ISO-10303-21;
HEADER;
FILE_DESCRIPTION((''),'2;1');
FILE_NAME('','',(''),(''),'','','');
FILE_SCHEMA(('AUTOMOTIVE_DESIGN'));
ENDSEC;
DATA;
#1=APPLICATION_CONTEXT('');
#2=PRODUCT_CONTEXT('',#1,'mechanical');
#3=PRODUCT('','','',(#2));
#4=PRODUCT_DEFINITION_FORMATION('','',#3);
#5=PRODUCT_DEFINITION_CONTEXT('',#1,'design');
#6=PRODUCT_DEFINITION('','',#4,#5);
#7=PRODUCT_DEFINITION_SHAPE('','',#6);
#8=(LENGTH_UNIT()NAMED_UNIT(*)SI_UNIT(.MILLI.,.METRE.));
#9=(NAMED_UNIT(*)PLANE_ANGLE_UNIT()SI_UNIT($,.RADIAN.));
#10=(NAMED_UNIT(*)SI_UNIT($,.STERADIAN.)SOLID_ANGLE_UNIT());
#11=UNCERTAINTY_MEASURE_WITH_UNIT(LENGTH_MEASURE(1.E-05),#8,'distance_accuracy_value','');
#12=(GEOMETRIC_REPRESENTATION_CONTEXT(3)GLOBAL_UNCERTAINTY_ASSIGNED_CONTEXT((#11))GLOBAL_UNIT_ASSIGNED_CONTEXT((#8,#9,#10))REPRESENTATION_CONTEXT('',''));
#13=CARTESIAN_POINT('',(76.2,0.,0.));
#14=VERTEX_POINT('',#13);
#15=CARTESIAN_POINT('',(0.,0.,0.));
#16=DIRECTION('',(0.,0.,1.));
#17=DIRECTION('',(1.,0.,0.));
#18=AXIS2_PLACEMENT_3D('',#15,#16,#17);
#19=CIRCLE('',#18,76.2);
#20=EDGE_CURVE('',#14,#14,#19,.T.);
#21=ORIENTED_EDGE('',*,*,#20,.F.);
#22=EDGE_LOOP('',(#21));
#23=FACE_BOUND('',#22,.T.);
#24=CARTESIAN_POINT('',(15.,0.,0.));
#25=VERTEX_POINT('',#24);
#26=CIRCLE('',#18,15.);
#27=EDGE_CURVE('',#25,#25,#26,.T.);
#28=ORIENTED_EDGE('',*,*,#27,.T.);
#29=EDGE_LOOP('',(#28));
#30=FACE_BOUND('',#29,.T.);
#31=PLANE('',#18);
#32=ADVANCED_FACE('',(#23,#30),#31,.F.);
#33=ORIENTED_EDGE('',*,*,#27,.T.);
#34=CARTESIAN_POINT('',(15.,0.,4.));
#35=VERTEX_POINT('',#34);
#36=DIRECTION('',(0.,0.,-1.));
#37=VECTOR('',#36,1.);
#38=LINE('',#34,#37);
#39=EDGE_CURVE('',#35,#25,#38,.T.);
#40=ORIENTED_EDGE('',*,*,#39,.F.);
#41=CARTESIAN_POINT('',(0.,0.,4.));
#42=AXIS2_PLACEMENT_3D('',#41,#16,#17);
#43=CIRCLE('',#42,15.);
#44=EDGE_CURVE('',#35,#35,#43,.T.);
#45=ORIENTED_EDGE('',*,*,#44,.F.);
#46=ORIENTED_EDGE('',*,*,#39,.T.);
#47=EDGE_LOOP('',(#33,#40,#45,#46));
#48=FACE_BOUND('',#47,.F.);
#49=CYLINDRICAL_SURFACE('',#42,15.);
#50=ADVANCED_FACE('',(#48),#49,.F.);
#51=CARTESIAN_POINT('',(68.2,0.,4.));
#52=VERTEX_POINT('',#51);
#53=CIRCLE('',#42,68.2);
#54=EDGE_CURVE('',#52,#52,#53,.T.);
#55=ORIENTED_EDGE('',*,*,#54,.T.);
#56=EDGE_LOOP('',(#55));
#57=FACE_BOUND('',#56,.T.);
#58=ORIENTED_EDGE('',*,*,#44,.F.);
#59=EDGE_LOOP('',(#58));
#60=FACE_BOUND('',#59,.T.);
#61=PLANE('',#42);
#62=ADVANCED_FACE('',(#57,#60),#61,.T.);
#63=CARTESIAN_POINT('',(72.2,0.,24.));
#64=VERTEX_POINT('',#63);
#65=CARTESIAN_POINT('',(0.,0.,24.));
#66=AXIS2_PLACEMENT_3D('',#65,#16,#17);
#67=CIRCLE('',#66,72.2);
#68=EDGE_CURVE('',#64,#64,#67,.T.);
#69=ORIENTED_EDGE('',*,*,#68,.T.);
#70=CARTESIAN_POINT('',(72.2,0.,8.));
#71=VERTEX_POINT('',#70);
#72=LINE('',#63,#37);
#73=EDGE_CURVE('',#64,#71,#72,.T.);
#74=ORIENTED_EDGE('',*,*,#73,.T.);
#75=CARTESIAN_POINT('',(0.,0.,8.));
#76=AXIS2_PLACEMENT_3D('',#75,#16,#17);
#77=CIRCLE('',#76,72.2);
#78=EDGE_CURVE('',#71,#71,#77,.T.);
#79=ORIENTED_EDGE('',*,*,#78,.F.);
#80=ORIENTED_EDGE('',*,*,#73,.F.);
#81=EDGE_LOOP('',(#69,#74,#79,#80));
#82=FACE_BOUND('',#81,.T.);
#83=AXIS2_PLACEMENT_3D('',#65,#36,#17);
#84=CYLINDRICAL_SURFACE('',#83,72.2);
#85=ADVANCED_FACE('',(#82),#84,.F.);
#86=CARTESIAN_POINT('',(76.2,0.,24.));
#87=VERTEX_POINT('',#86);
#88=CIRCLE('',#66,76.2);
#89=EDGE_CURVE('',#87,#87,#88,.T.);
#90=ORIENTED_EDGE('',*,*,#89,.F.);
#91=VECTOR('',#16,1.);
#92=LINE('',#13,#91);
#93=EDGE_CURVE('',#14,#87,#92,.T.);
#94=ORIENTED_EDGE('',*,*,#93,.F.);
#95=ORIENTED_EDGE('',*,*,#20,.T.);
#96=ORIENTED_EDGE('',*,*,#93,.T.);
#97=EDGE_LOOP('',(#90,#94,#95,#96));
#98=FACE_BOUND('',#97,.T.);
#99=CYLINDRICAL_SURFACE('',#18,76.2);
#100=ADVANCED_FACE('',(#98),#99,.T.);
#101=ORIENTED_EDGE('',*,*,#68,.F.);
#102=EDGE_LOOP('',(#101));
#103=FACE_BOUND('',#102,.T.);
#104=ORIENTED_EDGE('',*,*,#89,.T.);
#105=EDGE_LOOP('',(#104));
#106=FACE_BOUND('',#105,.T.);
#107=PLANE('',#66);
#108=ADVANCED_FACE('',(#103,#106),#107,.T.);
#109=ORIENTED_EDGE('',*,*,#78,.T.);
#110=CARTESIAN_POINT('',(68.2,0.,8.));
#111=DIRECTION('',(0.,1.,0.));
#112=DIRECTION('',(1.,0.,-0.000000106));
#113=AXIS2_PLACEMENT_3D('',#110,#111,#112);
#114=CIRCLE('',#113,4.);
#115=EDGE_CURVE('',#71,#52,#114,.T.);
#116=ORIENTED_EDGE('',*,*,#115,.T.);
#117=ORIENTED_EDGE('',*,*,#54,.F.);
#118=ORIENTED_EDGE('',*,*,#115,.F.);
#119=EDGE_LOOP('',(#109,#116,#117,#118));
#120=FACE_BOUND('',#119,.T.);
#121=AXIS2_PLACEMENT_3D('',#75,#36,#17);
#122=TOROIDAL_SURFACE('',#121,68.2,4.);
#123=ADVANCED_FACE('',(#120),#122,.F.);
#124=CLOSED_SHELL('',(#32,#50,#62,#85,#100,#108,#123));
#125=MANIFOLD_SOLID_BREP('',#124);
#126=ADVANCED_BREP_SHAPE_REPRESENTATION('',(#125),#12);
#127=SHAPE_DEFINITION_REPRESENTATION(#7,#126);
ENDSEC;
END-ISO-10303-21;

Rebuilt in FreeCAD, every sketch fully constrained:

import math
import FreeCAD as App
import Part
import Sketcher
from FreeCAD import Vector
Q = App.Units.Quantity

doc = App.newDocument("Part")
body = doc.addObject("PartDesign::Body", "Body")

sketch1 = doc.addObject("Sketcher::SketchObject", "Sketch")
body.addObject(sketch1)
sketch1.AttachmentSupport = (doc.XZ_Plane, [""])
sketch1.MapMode = "FlatFace"
sketch1.addGeometry([
    Part.LineSegment(Vector(0, 4, 0), Vector(0, 0, 0)),
    Part.LineSegment(Vector(0, 0, 0), Vector(76.2, 0, 0)),
    Part.LineSegment(Vector(76.2, 0, 0), Vector(76.2, 24, 0)),
    Part.LineSegment(Vector(76.2, 24, 0), Vector(72.2, 24, 0)),
    Part.LineSegment(Vector(72.2, 24, 0), Vector(72.2, 8, 0)),
    Part.ArcOfCircle(Part.Circle(Vector(68.2, 8, 0), Vector(0, 0, 1), 4), math.radians(-90), math.radians(0)),
    Part.LineSegment(Vector(68.2, 4, 0), Vector(0, 4, 0)),
], False)
sketch1.addConstraint([
    Sketcher.Constraint("Coincident", 0, 2, 1, 1),
    Sketcher.Constraint("Coincident", 1, 2, 2, 1),
    Sketcher.Constraint("Coincident", 2, 2, 3, 1),
    Sketcher.Constraint("Coincident", 3, 2, 4, 1),
    Sketcher.Constraint("Tangent", 4, 2, 5, 2),
    Sketcher.Constraint("Tangent", 5, 1, 6, 1),
    Sketcher.Constraint("Coincident", 6, 2, 0, 1),
    Sketcher.Constraint("Vertical", 0),
    Sketcher.Constraint("Horizontal", 1),
    Sketcher.Constraint("Vertical", 2),
    Sketcher.Constraint("Horizontal", 3),
    Sketcher.Constraint("Vertical", 4),
    Sketcher.Constraint("Horizontal", 6),
    Sketcher.Constraint("Coincident", 0, 2, -1, 1),
    Sketcher.Constraint("Equal", 3, 0),
    Sketcher.Constraint("Radius", 5, Q("4 mm")),
    Sketcher.Constraint("DistanceX", 3, 2, 3, 1, Q("4 mm")),
    Sketcher.Constraint("DistanceY", 2, 1, 2, 2, Q("24 mm")),
    Sketcher.Constraint("DistanceX", 1, 1, 1, 2, Q("76.2 mm")),
])
revolution = doc.addObject("PartDesign::Revolution", "Revolution")
body.addObject(revolution)
revolution.Profile = sketch1
revolution.ReferenceAxis = (sketch1, ["V_Axis"])
revolution.Angle = 360

sketch2 = doc.addObject("Sketcher::SketchObject", "Sketch001")
body.addObject(sketch2)
sketch2.AttachmentSupport = (doc.XY_Plane, [""])
sketch2.MapMode = "FlatFace"
sketch2.AttachmentOffset = App.Placement(Vector(0, 0, 4), App.Rotation())
sketch2.addGeometry(Part.Circle(Vector(0, 0, 0), Vector(0, 0, 1), 15), False)
sketch2.addConstraint([
    Sketcher.Constraint("Coincident", 0, 3, -1, 1),
    Sketcher.Constraint("Diameter", 0, Q("30 mm")),
])
pocket1 = doc.addObject("PartDesign::Pocket", "Pocket")
body.addObject(pocket1)
pocket1.Profile = sketch2
pocket1.Length = 25

doc.recompute()
